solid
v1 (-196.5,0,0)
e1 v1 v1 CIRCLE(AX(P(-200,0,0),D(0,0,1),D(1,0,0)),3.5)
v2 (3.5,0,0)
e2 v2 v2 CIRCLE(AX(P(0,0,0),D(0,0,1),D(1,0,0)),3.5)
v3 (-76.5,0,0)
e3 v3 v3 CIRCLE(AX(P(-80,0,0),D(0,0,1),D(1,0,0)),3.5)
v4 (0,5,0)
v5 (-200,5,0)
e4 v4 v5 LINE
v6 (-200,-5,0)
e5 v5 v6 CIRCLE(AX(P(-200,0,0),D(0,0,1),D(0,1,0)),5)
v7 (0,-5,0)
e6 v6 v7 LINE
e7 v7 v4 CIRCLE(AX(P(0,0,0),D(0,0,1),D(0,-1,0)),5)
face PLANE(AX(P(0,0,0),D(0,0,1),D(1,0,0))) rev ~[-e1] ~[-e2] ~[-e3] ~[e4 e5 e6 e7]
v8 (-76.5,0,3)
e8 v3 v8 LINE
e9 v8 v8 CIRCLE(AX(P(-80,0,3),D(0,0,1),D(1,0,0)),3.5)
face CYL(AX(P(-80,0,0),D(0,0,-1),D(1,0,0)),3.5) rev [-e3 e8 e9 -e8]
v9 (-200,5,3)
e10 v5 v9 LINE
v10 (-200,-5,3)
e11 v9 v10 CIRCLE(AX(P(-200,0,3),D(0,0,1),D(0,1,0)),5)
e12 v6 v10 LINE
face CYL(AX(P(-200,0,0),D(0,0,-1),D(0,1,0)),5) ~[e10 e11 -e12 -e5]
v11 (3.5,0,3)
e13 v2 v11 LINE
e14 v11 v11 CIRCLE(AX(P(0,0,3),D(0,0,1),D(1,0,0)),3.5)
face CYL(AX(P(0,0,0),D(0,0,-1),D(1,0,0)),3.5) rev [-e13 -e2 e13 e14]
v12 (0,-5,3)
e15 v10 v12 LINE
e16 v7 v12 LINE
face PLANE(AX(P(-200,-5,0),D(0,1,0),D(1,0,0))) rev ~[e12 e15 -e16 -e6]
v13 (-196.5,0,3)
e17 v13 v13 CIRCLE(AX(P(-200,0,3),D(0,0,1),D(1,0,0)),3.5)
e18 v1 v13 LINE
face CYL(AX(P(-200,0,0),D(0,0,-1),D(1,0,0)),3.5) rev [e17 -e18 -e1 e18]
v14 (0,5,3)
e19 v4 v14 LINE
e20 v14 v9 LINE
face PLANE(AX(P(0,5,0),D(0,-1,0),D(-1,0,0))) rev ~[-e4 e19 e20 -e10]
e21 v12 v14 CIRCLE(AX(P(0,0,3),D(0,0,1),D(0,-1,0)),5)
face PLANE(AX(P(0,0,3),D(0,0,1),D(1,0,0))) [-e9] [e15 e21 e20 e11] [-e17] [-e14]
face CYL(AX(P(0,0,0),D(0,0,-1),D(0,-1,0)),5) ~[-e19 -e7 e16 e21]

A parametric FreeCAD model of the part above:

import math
import FreeCAD as App
import Part
import Sketcher

V = App.Vector

doc = App.newDocument("Part")
body = doc.addObject("PartDesign::Body", "Body")

sketch1 = doc.addObject("Sketcher::SketchObject", "Sketch")
body.addObject(sketch1)
sketch1.AttachmentSupport = (doc.XY_Plane, [""])
sketch1.MapMode = "FlatFace"
sketch1.addGeometry([
    Part.ArcOfCircle(Part.Circle(V(-200, 0, 0), V(0, 0, 1), 5), math.radians(90), math.radians(270)),
    Part.LineSegment(V(-200, -5, 0), V(0, -5, 0)),
    Part.ArcOfCircle(Part.Circle(V(0, 0, 0), V(0, 0, 1), 5), math.radians(-90), math.radians(90)),
    Part.LineSegment(V(0, 5, 0), V(-200, 5, 0)),
    Part.Circle(V(-200, 0, 0), V(0, 0, 1), 3.5),
    Part.Circle(V(-80, 0, 0), V(0, 0, 1), 3.5),
    Part.Circle(V(0, 0, 0), V(0, 0, 1), 3.5),
], False)
sketch1.addConstraint([
    Sketcher.Constraint("Tangent", 0, 2, 1, 1),
    Sketcher.Constraint("Tangent", 1, 2, 2, 1),
    Sketcher.Constraint("Tangent", 2, 2, 3, 1),
    Sketcher.Constraint("Tangent", 3, 2, 0, 1),
    Sketcher.Constraint("Horizontal", 1),
    Sketcher.Constraint("Horizontal", 3),
    Sketcher.Constraint("Coincident", 2, 3, -1, 1),
    Sketcher.Constraint("Coincident", 6, 3, -1, 1),
    Sketcher.Constraint("Coincident", 4, 3, 0, 3),
    Sketcher.Constraint("Equal", 4, 5),
    Sketcher.Constraint("Equal", 5, 6),
    Sketcher.Constraint("PointOnObject", 5, 3, -1),
    Sketcher.Constraint("Diameter", 4, 7.0),
    Sketcher.Constraint("Radius", 0, 5.0),
    Sketcher.Constraint("DistanceX", 1, 1, 1, 2, 200.0),
    Sketcher.Constraint("DistanceX", 0, 3, 5, 3, 120.0),
])
pad1 = doc.addObject("PartDesign::Pad", "Pad")
body.addObject(pad1)
pad1.Profile = sketch1
pad1.Length = 3

doc.recompute()
